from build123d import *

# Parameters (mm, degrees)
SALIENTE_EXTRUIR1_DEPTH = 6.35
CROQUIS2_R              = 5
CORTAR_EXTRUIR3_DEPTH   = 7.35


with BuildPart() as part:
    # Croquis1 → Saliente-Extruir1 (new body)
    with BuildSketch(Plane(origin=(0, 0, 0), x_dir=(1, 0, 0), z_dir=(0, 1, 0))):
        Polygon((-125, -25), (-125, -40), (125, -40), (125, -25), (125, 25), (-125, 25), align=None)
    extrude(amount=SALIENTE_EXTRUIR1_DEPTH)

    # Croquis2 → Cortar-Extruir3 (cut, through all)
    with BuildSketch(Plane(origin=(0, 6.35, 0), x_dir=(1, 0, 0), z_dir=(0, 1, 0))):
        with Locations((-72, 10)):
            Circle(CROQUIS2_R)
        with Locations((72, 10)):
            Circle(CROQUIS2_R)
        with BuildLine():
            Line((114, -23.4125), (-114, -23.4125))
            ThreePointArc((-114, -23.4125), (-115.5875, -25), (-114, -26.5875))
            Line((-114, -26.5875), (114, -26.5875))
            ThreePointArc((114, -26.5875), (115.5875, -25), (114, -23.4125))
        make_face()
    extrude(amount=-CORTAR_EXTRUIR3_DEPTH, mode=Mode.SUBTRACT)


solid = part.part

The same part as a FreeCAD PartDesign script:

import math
import FreeCAD as App
import Part
import Sketcher
Q = App.Units.Quantity


def add_polygon(sketch, points):
    """Adds a closed chain of lines whose ends are joined by coincident constraints."""
    first, n = sketch.GeometryCount, len(points)
    for a, b in zip(points, points[1:] + points[:1]):
        sketch.addGeometry(Part.LineSegment(App.Vector(*a, 0), App.Vector(*b, 0)), False)
    for i in range(n):
        sketch.addConstraint(Sketcher.Constraint("Coincident", first + i, 2, first + (i + 1) % n, 1))

doc = App.newDocument("Part")
body = doc.addObject("PartDesign::Body", "Body")

# Sketch on XZ plane
sketch1 = body.newObject("Sketcher::SketchObject", "Sketch")
sketch1.AttachmentSupport = (doc.getObject("XZ_Plane"), [""])
sketch1.MapMode = "FlatFace"
add_polygon(sketch1, [(-125, 40), (125, 40), (125, -25), (-125, -25)])  # lines 0-3
sketch1.addConstraint([
    Sketcher.Constraint("Horizontal", 0),
    Sketcher.Constraint("Vertical", 1),
    Sketcher.Constraint("Horizontal", 2),
    Sketcher.Constraint("Vertical", 3),
    Sketcher.Constraint("DistanceX", 0, 1, 0, 2, Q("250 mm")),
    Sketcher.Constraint("DistanceY", 1, 2, 1, 1, Q("65 mm")),
    Sketcher.Constraint("DistanceX", -1, 1, 0, 2, Q("125 mm")),
    Sketcher.Constraint("DistanceY", -1, 1, 0, 2, Q("40 mm")),
])
pad1 = body.newObject("PartDesign::Pad", "Pad")
pad1.Profile = sketch1
pad1.Length = 6.35
pad1.Reversed = True

# Sketch on XZ plane
sketch2 = body.newObject("Sketcher::SketchObject", "Sketch001")
sketch2.AttachmentSupport = (doc.getObject("XZ_Plane"), [""])
sketch2.MapMode = "FlatFace"
sketch2.AttachmentOffset = App.Placement(App.Vector(0, 0, -6.35), App.Rotation())
sketch2.addGeometry([
    Part.Circle(App.Vector(-72, -10, 0), App.Vector(0, 0, 1), 5),  # 0
    Part.Circle(App.Vector(72, -10, 0), App.Vector(0, 0, 1), 5),  # 1
    Part.LineSegment(App.Vector(114, 23.4, 0), App.Vector(-114, 23.4, 0)),  # 2
    Part.ArcOfCircle(Part.Circle(App.Vector(-114, 25, 0), App.Vector(0, 0, 1), 1.6), math.radians(90), math.radians(270)),  # 3
    Part.LineSegment(App.Vector(-114, 26.6, 0), App.Vector(114, 26.6, 0)),  # 4
    Part.ArcOfCircle(Part.Circle(App.Vector(114, 25, 0), App.Vector(0, 0, 1), 1.6), math.radians(-90), math.radians(90)),  # 5
], False)
sketch2.addConstraint([
    Sketcher.Constraint("Tangent", 2, 2, 3, 2),
    Sketcher.Constraint("Tangent", 3, 1, 4, 1),
    Sketcher.Constraint("Tangent", 4, 2, 5, 2),
    Sketcher.Constraint("Tangent", 5, 1, 2, 1),
    Sketcher.Constraint("Horizontal", 2),
    Sketcher.Constraint("Horizontal", 4),
    Sketcher.Constraint("Equal", 0, 1),
    Sketcher.Constraint("Symmetric", 0, 3, 1, 3, -2),
    Sketcher.Constraint("Diameter", 0, Q("10 mm")),
    Sketcher.Constraint("DistanceX", 2, 2, 2, 1, Q("228 mm")),
    Sketcher.Constraint("DistanceX", 0, 3, -1, 1, Q("72 mm")),
    Sketcher.Constraint("DistanceY", 0, 3, -1, 1, Q("10 mm")),
    Sketcher.Constraint("DistanceX", 3, 3, -1, 1, Q("114 mm")),
    Sketcher.Constraint("DistanceY", -1, 1, 3, 3, Q("25 mm")),
    Sketcher.Constraint("Radius", 3, Q("1.5875 mm")),
])
pocket1 = body.newObject("PartDesign::Pocket", "Pocket")
pocket1.Profile = sketch2
pocket1.Type = "ThroughAll"
pocket1.Reversed = True

doc.recompute()
